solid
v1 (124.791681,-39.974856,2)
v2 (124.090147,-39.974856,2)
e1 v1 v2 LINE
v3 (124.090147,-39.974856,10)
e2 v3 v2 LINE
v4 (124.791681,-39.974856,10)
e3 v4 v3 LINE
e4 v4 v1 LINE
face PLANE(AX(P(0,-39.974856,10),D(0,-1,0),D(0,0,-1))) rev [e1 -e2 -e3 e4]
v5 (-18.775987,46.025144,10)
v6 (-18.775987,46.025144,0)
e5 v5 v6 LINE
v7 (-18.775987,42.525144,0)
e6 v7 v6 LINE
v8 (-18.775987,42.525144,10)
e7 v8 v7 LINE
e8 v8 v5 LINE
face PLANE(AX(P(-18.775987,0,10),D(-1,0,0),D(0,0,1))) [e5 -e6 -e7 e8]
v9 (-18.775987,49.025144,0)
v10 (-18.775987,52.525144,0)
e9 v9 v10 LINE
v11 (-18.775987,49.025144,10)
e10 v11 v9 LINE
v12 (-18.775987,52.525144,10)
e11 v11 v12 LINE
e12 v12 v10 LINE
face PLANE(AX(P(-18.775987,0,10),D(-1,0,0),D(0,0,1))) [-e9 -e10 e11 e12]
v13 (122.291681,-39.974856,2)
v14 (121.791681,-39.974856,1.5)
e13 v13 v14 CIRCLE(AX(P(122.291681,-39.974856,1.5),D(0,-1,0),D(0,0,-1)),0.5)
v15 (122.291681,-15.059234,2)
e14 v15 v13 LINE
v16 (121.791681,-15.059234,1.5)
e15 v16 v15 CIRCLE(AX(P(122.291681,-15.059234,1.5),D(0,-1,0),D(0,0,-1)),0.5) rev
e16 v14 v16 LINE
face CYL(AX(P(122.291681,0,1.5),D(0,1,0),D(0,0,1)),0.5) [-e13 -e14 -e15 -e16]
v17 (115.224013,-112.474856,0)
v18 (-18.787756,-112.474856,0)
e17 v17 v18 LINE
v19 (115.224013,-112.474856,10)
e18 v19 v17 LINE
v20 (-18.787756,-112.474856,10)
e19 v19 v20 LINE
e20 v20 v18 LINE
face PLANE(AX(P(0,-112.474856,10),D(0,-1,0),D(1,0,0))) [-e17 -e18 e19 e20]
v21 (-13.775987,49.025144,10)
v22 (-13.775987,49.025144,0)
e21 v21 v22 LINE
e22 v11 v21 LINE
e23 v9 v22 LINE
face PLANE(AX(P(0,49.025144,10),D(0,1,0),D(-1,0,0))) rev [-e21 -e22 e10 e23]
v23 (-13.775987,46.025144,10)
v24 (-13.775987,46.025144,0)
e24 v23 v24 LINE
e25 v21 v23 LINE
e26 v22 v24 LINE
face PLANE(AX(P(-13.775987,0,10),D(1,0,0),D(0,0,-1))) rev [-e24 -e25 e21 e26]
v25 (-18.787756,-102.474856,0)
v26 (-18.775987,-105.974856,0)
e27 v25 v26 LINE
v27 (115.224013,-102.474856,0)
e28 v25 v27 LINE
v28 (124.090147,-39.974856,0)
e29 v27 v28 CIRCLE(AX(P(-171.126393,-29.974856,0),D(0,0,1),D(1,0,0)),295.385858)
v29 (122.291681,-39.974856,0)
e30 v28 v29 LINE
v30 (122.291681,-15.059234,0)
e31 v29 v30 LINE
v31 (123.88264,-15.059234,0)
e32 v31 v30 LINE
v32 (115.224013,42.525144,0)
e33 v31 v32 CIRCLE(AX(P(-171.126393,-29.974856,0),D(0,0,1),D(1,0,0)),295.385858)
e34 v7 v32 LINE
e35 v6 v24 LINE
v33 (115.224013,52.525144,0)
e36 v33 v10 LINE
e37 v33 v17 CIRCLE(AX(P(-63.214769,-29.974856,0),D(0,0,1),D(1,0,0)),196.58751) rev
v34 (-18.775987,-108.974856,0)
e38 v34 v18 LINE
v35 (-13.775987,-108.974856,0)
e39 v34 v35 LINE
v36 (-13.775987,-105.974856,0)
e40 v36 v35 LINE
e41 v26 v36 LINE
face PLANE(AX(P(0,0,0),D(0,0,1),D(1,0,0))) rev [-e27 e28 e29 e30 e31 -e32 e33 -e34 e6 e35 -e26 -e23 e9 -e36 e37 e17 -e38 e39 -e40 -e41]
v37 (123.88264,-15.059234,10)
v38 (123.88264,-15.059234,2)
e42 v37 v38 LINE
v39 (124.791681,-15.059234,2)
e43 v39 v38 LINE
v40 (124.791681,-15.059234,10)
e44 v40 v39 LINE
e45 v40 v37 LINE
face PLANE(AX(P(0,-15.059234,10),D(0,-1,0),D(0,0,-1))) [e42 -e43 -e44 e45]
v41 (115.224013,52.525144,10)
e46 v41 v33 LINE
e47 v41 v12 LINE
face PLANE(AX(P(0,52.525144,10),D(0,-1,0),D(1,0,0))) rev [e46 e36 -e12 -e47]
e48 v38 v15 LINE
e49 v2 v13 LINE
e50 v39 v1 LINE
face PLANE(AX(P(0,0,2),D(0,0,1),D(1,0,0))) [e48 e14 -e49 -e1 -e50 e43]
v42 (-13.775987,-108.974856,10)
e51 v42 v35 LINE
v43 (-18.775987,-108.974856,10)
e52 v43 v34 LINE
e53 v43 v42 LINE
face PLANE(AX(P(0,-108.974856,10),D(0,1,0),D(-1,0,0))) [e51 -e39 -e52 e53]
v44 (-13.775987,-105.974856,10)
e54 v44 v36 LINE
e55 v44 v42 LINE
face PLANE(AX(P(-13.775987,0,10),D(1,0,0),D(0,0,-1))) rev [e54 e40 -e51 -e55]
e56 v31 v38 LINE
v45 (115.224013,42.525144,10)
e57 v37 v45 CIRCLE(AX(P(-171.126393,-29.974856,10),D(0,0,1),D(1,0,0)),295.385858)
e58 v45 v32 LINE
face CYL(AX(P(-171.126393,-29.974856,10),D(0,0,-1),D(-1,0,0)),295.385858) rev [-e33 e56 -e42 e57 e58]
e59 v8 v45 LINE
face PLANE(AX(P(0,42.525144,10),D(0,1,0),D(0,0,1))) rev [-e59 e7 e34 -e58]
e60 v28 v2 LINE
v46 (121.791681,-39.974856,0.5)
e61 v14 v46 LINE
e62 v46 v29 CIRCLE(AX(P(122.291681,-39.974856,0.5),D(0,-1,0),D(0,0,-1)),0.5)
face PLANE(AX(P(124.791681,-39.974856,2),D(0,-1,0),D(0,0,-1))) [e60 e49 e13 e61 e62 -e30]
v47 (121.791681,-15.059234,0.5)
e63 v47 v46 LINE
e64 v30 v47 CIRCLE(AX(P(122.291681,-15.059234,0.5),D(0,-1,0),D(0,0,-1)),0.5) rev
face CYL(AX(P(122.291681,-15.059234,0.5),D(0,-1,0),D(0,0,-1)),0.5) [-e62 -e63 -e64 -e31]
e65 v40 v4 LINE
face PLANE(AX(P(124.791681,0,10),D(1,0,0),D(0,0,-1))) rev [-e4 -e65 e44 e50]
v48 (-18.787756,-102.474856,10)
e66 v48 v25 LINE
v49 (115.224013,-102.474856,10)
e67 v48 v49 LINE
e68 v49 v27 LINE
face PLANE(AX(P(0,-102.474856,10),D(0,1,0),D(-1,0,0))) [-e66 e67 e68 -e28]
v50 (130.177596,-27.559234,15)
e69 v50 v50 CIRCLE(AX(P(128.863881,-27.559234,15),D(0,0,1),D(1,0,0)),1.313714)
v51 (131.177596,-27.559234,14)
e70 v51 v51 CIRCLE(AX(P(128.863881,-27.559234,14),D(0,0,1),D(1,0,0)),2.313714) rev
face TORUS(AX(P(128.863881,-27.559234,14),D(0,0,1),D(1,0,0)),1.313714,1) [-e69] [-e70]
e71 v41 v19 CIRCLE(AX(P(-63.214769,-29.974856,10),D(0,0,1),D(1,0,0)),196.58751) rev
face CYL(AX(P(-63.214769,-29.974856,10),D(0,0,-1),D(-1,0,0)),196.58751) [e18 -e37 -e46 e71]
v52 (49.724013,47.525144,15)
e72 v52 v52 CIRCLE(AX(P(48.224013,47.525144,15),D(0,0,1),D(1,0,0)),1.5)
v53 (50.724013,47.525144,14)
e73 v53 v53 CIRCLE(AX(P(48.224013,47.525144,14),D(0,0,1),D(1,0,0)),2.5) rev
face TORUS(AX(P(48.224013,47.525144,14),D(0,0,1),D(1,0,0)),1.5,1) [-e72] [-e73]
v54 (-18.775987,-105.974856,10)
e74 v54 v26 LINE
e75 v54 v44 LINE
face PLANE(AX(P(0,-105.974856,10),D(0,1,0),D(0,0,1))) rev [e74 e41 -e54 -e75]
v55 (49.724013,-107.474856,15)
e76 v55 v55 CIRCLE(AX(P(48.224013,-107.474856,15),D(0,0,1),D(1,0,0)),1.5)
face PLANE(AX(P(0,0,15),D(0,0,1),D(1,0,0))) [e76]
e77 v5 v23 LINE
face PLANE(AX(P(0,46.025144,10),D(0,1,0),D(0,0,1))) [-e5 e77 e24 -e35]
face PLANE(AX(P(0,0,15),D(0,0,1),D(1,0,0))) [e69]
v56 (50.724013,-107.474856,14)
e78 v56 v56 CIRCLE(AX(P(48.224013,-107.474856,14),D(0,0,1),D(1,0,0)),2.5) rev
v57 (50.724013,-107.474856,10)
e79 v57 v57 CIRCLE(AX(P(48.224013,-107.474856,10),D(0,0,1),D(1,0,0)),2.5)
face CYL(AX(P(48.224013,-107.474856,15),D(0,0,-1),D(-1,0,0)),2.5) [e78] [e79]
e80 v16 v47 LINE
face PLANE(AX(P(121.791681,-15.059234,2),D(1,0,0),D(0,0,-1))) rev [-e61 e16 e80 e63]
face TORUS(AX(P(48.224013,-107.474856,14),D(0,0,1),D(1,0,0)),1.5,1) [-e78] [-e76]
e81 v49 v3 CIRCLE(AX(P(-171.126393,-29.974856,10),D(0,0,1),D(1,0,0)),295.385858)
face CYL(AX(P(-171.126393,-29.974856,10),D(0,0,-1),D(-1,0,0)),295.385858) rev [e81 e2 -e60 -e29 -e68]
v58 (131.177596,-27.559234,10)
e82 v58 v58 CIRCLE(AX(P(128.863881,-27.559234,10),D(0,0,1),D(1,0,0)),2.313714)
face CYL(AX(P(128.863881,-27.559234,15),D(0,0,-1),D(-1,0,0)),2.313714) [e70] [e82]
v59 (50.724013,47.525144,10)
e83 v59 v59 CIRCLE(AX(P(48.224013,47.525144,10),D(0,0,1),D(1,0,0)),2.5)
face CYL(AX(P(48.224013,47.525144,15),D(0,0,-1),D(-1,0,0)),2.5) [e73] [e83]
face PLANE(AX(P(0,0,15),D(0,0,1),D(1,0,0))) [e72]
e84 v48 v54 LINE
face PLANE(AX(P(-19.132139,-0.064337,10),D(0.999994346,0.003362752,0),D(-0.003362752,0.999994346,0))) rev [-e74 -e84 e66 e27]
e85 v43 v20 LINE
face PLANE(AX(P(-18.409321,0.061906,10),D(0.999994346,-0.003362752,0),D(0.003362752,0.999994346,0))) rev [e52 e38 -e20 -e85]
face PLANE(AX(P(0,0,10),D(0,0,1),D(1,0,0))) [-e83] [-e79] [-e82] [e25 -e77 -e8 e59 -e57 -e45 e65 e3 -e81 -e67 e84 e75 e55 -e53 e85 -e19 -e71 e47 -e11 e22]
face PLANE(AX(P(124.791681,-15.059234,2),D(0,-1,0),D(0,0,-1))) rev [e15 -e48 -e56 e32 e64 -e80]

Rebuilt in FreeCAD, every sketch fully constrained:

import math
import FreeCAD as App
import Part
import Sketcher

V = App.Vector
Q = App.Units.Quantity


def edges_at(feature, points):
    """Names of the edges that pass closest to the given points."""
    edges = feature.Shape.Edges
    near = lambda p: min(range(len(edges)), key=lambda i: edges[i].distToShape(Part.Vertex(*p))[0])
    return sorted({f"Edge{near(p) + 1}" for p in points})

doc = App.newDocument("Part")
body = doc.addObject("PartDesign::Body", "Body")

# Sketch on XY plane
sketch1 = body.newObject("Sketcher::SketchObject", "Sketch")
sketch1.AttachmentSupport = (doc.getObject("XY_Plane"), [""])
sketch1.MapMode = "FlatFace"
sketch1.addGeometry([
    Part.LineSegment(V(-18.8, 46, 0), V(-18.8, 42.5, 0)),  # 0
    Part.LineSegment(V(-18.8, 42.5, 0), V(115.2, 42.5, 0)),  # 1
    Part.ArcOfCircle(Part.Circle(V(-171.1, -30, 0), V(0, 0, 1), 295.4), math.radians(2.89), math.radians(14.21)),  # 2
    Part.LineSegment(V(123.9, -15.1, 0), V(124.8, -15.1, 0)),  # 3
    Part.LineSegment(V(124.8, -15.1, 0), V(124.8, -40, 0)),  # 4
    Part.LineSegment(V(124.8, -40, 0), V(124.1, -40, 0)),  # 5
    Part.ArcOfCircle(Part.Circle(V(-171.1, -30, 0), V(0, 0, 1), 295.4), math.radians(-14.21), math.radians(-1.94)),  # 6
    Part.LineSegment(V(115.2, -102.5, 0), V(-18.8, -102.5, 0)),  # 7
    Part.LineSegment(V(-18.8, -102.5, 0), V(-18.8, -106, 0)),  # 8
    Part.LineSegment(V(-18.8, -106, 0), V(-13.8, -106, 0)),  # 9
    Part.LineSegment(V(-13.8, -106, 0), V(-13.8, -109, 0)),  # 10
    Part.LineSegment(V(-13.8, -109, 0), V(-18.8, -109, 0)),  # 11
    Part.LineSegment(V(-18.8, -109, 0), V(-18.8, -112.5, 0)),  # 12
    Part.LineSegment(V(-18.8, -112.5, 0), V(115.2, -112.5, 0)),  # 13
    Part.ArcOfCircle(Part.Circle(V(-63.2, -30, 0), V(0, 0, 1), 196.6), math.radians(-25), math.radians(25)),  # 14
    Part.LineSegment(V(115.2, 52.5, 0), V(-18.8, 52.5, 0)),  # 15
    Part.LineSegment(V(-18.8, 52.5, 0), V(-18.8, 49, 0)),  # 16
    Part.LineSegment(V(-18.8, 49, 0), V(-13.8, 49, 0)),  # 17
    Part.LineSegment(V(-13.8, 49, 0), V(-13.8, 46, 0)),  # 18
    Part.LineSegment(V(-13.8, 46, 0), V(-18.8, 46, 0)),  # 19
    Part.Circle(V(48.2, 47.5, 0), V(0, 0, 1), 2.5),  # 20
    Part.Circle(V(128.9, -27.6, 0), V(0, 0, 1), 2.3),  # 21
    Part.Circle(V(48.2, -107.5, 0), V(0, 0, 1), 2.5),  # 22
], False)
sketch1.addConstraint([
    Sketcher.Constraint("Coincident", 0, 2, 1, 1),
    Sketcher.Constraint("Coincident", 1, 2, 2, 2),
    Sketcher.Constraint("Coincident", 2, 1, 3, 1),
    Sketcher.Constraint("Coincident", 3, 2, 4, 1),
    Sketcher.Constraint("Coincident", 4, 2, 5, 1),
    Sketcher.Constraint("Coincident", 5, 2, 6, 2),
    Sketcher.Constraint("Coincident", 6, 1, 7, 1),
    Sketcher.Constraint("Coincident", 7, 2, 8, 1),
    Sketcher.Constraint("Coincident", 8, 2, 9, 1),
    Sketcher.Constraint("Coincident", 9, 2, 10, 1),
    Sketcher.Constraint("Coincident", 10, 2, 11, 1),
    Sketcher.Constraint("Coincident", 11, 2, 12, 1),
    Sketcher.Constraint("Coincident", 12, 2, 13, 1),
    Sketcher.Constraint("Coincident", 13, 2, 14, 1),
    Sketcher.Constraint("Coincident", 14, 2, 15, 1),
    Sketcher.Constraint("Coincident", 15, 2, 16, 1),
    Sketcher.Constraint("Coincident", 16, 2, 17, 1),
    Sketcher.Constraint("Coincident", 17, 2, 18, 1),
    Sketcher.Constraint("Coincident", 18, 2, 19, 1),
    Sketcher.Constraint("Coincident", 19, 2, 0, 1),
    Sketcher.Constraint("Vertical", 0),
    Sketcher.Constraint("Horizontal", 1),
    Sketcher.Constraint("Horizontal", 3),
    Sketcher.Constraint("Vertical", 4),
    Sketcher.Constraint("Horizontal", 5),
    Sketcher.Constraint("Horizontal", 7),
    Sketcher.Constraint("Horizontal", 9),
    Sketcher.Constraint("Vertical", 10),
    Sketcher.Constraint("Horizontal", 11),
    Sketcher.Constraint("Horizontal", 13),
    Sketcher.Constraint("Horizontal", 15),
    Sketcher.Constraint("Vertical", 16),
    Sketcher.Constraint("Horizontal", 17),
    Sketcher.Constraint("Vertical", 18),
    Sketcher.Constraint("Horizontal", 19),
    Sketcher.Constraint("Coincident", 6, 3, 2, 3),
    Sketcher.Constraint("Equal", 2, 6),
    Sketcher.Constraint("Equal", 20, 22),
    Sketcher.Constraint("Horizontal", 6, 3, 14, 3),
    Sketcher.Constraint("Vertical", 20, 3, 22, 3),
    Sketcher.Constraint("Vertical", 1, 2, 6, 1),
    Sketcher.Constraint("Vertical", 0, 2, 8, 2),
    Sketcher.Constraint("Vertical", 8, 2, 11, 2),
    Sketcher.Constraint("Vertical", 7, 2, 12, 2),
    Sketcher.Constraint("Vertical", 6, 1, 13, 2),
    Sketcher.Constraint("Vertical", 13, 2, 14, 2),
    Sketcher.Constraint("Vertical", 11, 2, 15, 2),
    Sketcher.Constraint("Vertical", 10, 2, 17, 2),
    Sketcher.Constraint("Equal", 0, 16),
    Sketcher.Constraint("Equal", 10, 18),
    Sketcher.Constraint("Equal", 8, 12),
    Sketcher.Constraint("Diameter", 20, Q("5 mm")),
    Sketcher.Constraint("DistanceX", 1, 1, 1, 2, Q("134 mm")),
    Sketcher.Constraint("DistanceX", 9, 1, 9, 2, Q("5 mm")),
    Sketcher.Constraint("DistanceY", 10, 2, 10, 1, Q("3 mm")),
    Sketcher.Constraint("DistanceY", 0, 2, 0, 1, Q("3.5 mm")),
    Sketcher.Constraint("DistanceY", 22, 3, 20, 3, Q("155 mm")),
    Sketcher.Constraint("DistanceX", 0, 2, 20, 3, Q("67 mm")),
    Sketcher.Constraint("DistanceY", 0, 2, 20, 3, Q("5 mm")),
    Sketcher.Constraint("DistanceY", 22, 3, 7, 2, Q("5 mm")),
    Sketcher.Constraint("DistanceY", 21, 3, 2, 1, Q("12.5 mm")),
    Sketcher.Constraint("DistanceY", 4, 2, 1, 2, Q("82.5 mm")),
    Sketcher.Constraint("Diameter", 21, Q("4.627429 mm")),
    Sketcher.Constraint("Radius", 2, Q("295.385858 mm")),
    Sketcher.Constraint("Radius", 14, Q("196.58751 mm")),
    Sketcher.Constraint("DistanceX", 3, 1, 3, 2, Q("0.909041 mm")),
    Sketcher.Constraint("DistanceX", 7, 2, 7, 1, Q("134.01177 mm")),
    Sketcher.Constraint("DistanceX", 3, 2, 21, 3, Q("4.0722 mm")),
    Sketcher.Constraint("DistanceX", 5, 2, 5, 1, Q("0.701535 mm")),
    Sketcher.Constraint("DistanceX", 14, 3, -1, 1, Q("63.214769 mm")),
    Sketcher.Constraint("DistanceY", 2, 3, -1, 1, Q("29.974856 mm")),
])
pad1 = body.newObject("PartDesign::Pad", "Pad")
pad1.Profile = sketch1
pad1.Length = 10

# Sketch on XY plane
sketch2 = body.newObject("Sketcher::SketchObject", "Sketch001")
sketch2.AttachmentSupport = (doc.getObject("XY_Plane"), [""])
sketch2.MapMode = "FlatFace"
sketch2.addGeometry([
    Part.LineSegment(V(121.8, -15.1, 0), V(121.8, -40, 0)),
    Part.LineSegment(V(121.8, -40, 0), V(124.8, -40, 0)),
    Part.LineSegment(V(124.8, -40, 0), V(124.8, -15.1, 0)),
    Part.LineSegment(V(124.8, -15.1, 0), V(121.8, -15.1, 0)),
], False)
sketch2.addConstraint([
    Sketcher.Constraint("Coincident", 0, 2, 1, 1),
    Sketcher.Constraint("Coincident", 1, 2, 2, 1),
    Sketcher.Constraint("Coincident", 2, 2, 3, 1),
    Sketcher.Constraint("Coincident", 3, 2, 0, 1),
    Sketcher.Constraint("Vertical", 0),
    Sketcher.Constraint("Horizontal", 1),
    Sketcher.Constraint("Vertical", 2),
    Sketcher.Constraint("Horizontal", 3),
    Sketcher.Constraint("DistanceX", 1, 1, 1, 2, Q("3 mm")),
    Sketcher.Constraint("DistanceY", 0, 2, 0, 1, Q("24.915622 mm")),
    Sketcher.Constraint("DistanceX", -1, 1, 0, 2, Q("121.791681 mm")),
    Sketcher.Constraint("DistanceY", 0, 2, -1, 1, Q("39.974856 mm")),
])
pad2 = body.newObject("PartDesign::Pad", "Pad001")
pad2.Profile = sketch2
pad2.Length = 2

# Sketch on XY plane
sketch3 = body.newObject("Sketcher::SketchObject", "Sketch002")
sketch3.AttachmentSupport = (doc.getObject("XY_Plane"), [""])
sketch3.MapMode = "FlatFace"
sketch3.addGeometry([
    Part.Circle(V(48.2, 47.5, 0), V(0, 0, 1), 2.5),
    Part.Circle(V(128.9, -27.6, 0), V(0, 0, 1), 2.3),
    Part.Circle(V(48.2, -107.5, 0), V(0, 0, 1), 2.5),
], False)
sketch3.addConstraint([
    Sketcher.Constraint("Equal", 0, 2),
    Sketcher.Constraint("Vertical", 0, 3, 2, 3),
    Sketcher.Constraint("Diameter", 0, Q("5 mm")),
    Sketcher.Constraint("DistanceY", 2, 3, 0, 3, Q("155 mm")),
    Sketcher.Constraint("Diameter", 1, Q("4.627429 mm")),
    Sketcher.Constraint("DistanceX", -1, 1, 1, 3, Q("128.863881 mm")),
    Sketcher.Constraint("DistanceX", 0, 3, 1, 3, Q("80.639868 mm")),
    Sketcher.Constraint("DistanceY", -1, 1, 0, 3, Q("47.525144 mm")),
    Sketcher.Constraint("DistanceY", 1, 3, -1, 1, Q("27.559234 mm")),
])
pad3 = body.newObject("PartDesign::Pad", "Pad002")
pad3.Profile = sketch3
pad3.Length = 15
doc.recompute()

fillet = body.newObject("PartDesign::Fillet", "Fillet")
fillet.Base = (pad3, edges_at(pad3, [(45.724, 47.525, 15), (126.55, -27.559, 15), (45.724, -107.475, 15)]))
fillet.Radius = 1
doc.recompute()

fillet2 = body.newObject("PartDesign::Fillet", "Fillet001")
fillet2.Base = (fillet, edges_at(fillet, [(121.792, -27.517, 0), (121.792, -27.517, 2)]))
fillet2.Radius = 0.5

doc.recompute()
